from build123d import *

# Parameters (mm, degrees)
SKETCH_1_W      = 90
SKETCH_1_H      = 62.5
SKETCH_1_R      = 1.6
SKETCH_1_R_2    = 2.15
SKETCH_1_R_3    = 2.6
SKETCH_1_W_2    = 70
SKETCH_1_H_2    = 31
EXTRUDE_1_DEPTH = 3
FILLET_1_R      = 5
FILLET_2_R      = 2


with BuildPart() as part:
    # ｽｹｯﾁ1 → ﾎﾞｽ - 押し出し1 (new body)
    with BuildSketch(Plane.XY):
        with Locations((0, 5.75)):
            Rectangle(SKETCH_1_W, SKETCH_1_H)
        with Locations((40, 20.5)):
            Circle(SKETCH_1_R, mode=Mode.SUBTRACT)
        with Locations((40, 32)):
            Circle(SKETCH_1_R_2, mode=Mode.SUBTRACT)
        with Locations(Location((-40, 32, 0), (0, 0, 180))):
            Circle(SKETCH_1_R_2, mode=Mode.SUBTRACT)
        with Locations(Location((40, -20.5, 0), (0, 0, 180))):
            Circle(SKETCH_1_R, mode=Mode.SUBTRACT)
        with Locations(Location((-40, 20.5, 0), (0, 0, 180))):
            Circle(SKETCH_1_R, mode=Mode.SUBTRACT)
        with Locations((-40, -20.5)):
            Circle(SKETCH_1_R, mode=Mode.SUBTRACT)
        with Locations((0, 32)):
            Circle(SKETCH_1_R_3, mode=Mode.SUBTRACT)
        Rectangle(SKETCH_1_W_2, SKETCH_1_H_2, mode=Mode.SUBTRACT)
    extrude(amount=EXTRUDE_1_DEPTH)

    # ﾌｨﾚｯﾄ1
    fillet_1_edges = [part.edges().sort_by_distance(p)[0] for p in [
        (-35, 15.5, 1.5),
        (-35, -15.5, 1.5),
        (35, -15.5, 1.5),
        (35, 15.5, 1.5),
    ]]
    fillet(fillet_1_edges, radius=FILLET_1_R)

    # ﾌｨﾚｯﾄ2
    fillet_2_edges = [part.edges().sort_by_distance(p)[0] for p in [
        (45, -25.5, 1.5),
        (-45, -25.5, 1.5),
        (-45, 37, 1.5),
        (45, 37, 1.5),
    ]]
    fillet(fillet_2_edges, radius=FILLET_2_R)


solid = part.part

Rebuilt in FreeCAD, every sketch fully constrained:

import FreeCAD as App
import Part
import Sketcher
from FreeCAD import Vector


def edges_at(feature, points):
    """Names of the edges that pass closest to the given points."""
    edges = feature.Shape.Edges
    near = lambda p: min(range(len(edges)), key=lambda i: edges[i].distToShape(Part.Vertex(*p))[0])
    return sorted({f"Edge{near(p) + 1}" for p in points})

doc = App.newDocument("Part")
body = doc.addObject("PartDesign::Body", "Body")

sketch1 = doc.addObject("Sketcher::SketchObject", "Sketch")
body.addObject(sketch1)
sketch1.AttachmentSupport = (doc.XY_Plane, [""])
sketch1.MapMode = "FlatFace"
sketch1.addGeometry(Part.LineSegment(Vector(-45, 37, 0), Vector(-45, -25.5, 0)), False)
sketch1.addGeometry(Part.LineSegment(Vector(-45, -25.5, 0), Vector(45, -25.5, 0)), False)
sketch1.addGeometry(Part.LineSegment(Vector(45, -25.5, 0), Vector(45, 37, 0)), False)
sketch1.addGeometry(Part.LineSegment(Vector(45, 37, 0), Vector(-45, 37, 0)), False)
sketch1.addGeometry(Part.Circle(Vector(-40, -20.5, 0), Vector(0, 0, 1), 1.6), False)
sketch1.addGeometry(Part.Circle(Vector(40, -20.5, 0), Vector(0, 0, 1), 1.6), False)
sketch1.addGeometry(Part.LineSegment(Vector(35, -15.5, 0), Vector(-35, -15.5, 0)), False)
sketch1.addGeometry(Part.LineSegment(Vector(-35, -15.5, 0), Vector(-35, 15.5, 0)), False)
sketch1.addGeometry(Part.LineSegment(Vector(-35, 15.5, 0), Vector(35, 15.5, 0)), False)
sketch1.addGeometry(Part.LineSegment(Vector(35, 15.5, 0), Vector(35, -15.5, 0)), False)
sketch1.addGeometry(Part.Circle(Vector(-40, 20.5, 0), Vector(0, 0, 1), 1.6), False)
sketch1.addGeometry(Part.Circle(Vector(-40, 32, 0), Vector(0, 0, 1), 2.1), False)
sketch1.addGeometry(Part.Circle(Vector(0, 32, 0), Vector(0, 0, 1), 2.6), False)
sketch1.addGeometry(Part.Circle(Vector(40, 20.5, 0), Vector(0, 0, 1), 1.6), False)
sketch1.addGeometry(Part.Circle(Vector(40, 32, 0), Vector(0, 0, 1), 2.1), False)
sketch1.addConstraint(Sketcher.Constraint("Coincident", 0, 2, 1, 1))
sketch1.addConstraint(Sketcher.Constraint("Coincident", 1, 2, 2, 1))
sketch1.addConstraint(Sketcher.Constraint("Coincident", 2, 2, 3, 1))
sketch1.addConstraint(Sketcher.Constraint("Coincident", 3, 2, 0, 1))
sketch1.addConstraint(Sketcher.Constraint("Coincident", 6, 2, 7, 1))
sketch1.addConstraint(Sketcher.Constraint("Coincident", 7, 2, 8, 1))
sketch1.addConstraint(Sketcher.Constraint("Coincident", 8, 2, 9, 1))
sketch1.addConstraint(Sketcher.Constraint("Coincident", 9, 2, 6, 1))
sketch1.addConstraint(Sketcher.Constraint("Vertical", 0))
sketch1.addConstraint(Sketcher.Constraint("Horizontal", 1))
sketch1.addConstraint(Sketcher.Constraint("Vertical", 2))
sketch1.addConstraint(Sketcher.Constraint("Horizontal", 3))
sketch1.addConstraint(Sketcher.Constraint("Horizontal", 6))
sketch1.addConstraint(Sketcher.Constraint("Vertical", 7))
sketch1.addConstraint(Sketcher.Constraint("Horizontal", 8))
sketch1.addConstraint(Sketcher.Constraint("Vertical", 9))
sketch1.addConstraint(Sketcher.Constraint("Equal", 4, 5))
sketch1.addConstraint(Sketcher.Constraint("Equal", 5, 10))
sketch1.addConstraint(Sketcher.Constraint("Equal", 10, 13))
sketch1.addConstraint(Sketcher.Constraint("Equal", 11, 14))
sketch1.addConstraint(Sketcher.Constraint("Symmetric", 5, 3, 10, 3, -1, 1))
sketch1.addConstraint(Sketcher.Constraint("Symmetric", 4, 3, 13, 3, -1, 1))
sketch1.addConstraint(Sketcher.Constraint("Symmetric", 6, 2, 8, 2, -1, 1))
sketch1.addConstraint(Sketcher.Constraint("Symmetric", 4, 3, 5, 3, -2))
sketch1.addConstraint(Sketcher.Constraint("Symmetric", 11, 3, 14, 3, -2))
sketch1.addConstraint(Sketcher.Constraint("PointOnObject", 12, 3, -2))
sketch1.addConstraint(Sketcher.Constraint("Horizontal", 11, 3, 12, 3))
sketch1.addConstraint(Sketcher.Constraint("Vertical", 10, 3, 11, 3))
sketch1.addConstraint(Sketcher.Constraint("Diameter", 4, 3.2))
sketch1.addConstraint(Sketcher.Constraint("Diameter", 11, 4.3))
sketch1.addConstraint(Sketcher.Constraint("Diameter", 12, 5.2))
sketch1.addConstraint(Sketcher.Constraint("DistanceX", 1, 1, 1, 2, 90.0))
sketch1.addConstraint(Sketcher.Constraint("DistanceX", 6, 2, 6, 1, 70.0))
sketch1.addConstraint(Sketcher.Constraint("DistanceY", 7, 1, 7, 2, 31.0))
sketch1.addConstraint(Sketcher.Constraint("DistanceY", 0, 2, 0, 1, 62.5))
sketch1.addConstraint(Sketcher.Constraint("DistanceX", 4, 3, -1, 1, 40.0))
sketch1.addConstraint(Sketcher.Constraint("DistanceY", -1, 1, 11, 3, 32.0))
sketch1.addConstraint(Sketcher.Constraint("DistanceX", 0, 2, -1, 1, 45.0))
sketch1.addConstraint(Sketcher.Constraint("DistanceY", -1, 1, 2, 2, 37.0))
sketch1.addConstraint(Sketcher.Constraint("DistanceY", 4, 3, 10, 3, 41.0))
pad1 = doc.addObject("PartDesign::Pad", "Pad")
body.addObject(pad1)
pad1.Profile = sketch1
pad1.Length = 3
doc.recompute()

fillet = doc.addObject("PartDesign::Fillet", "Fillet")
body.addObject(fillet)
fillet.Base = (pad1, edges_at(pad1, [
    (-35, 15.5, 1.5),
    (-35, -15.5, 1.5),
    (35, -15.5, 1.5),
    (35, 15.5, 1.5),
]))
fillet.Radius = 5
doc.recompute()

fillet2 = doc.addObject("PartDesign::Fillet", "Fillet001")
body.addObject(fillet2)
fillet2.Base = (fillet, edges_at(fillet, [
    (45, -25.5, 1.5),
    (-45, -25.5, 1.5),
    (-45, 37, 1.5),
    (45, 37, 1.5),
]))
fillet2.Radius = 2

doc.recompute()
